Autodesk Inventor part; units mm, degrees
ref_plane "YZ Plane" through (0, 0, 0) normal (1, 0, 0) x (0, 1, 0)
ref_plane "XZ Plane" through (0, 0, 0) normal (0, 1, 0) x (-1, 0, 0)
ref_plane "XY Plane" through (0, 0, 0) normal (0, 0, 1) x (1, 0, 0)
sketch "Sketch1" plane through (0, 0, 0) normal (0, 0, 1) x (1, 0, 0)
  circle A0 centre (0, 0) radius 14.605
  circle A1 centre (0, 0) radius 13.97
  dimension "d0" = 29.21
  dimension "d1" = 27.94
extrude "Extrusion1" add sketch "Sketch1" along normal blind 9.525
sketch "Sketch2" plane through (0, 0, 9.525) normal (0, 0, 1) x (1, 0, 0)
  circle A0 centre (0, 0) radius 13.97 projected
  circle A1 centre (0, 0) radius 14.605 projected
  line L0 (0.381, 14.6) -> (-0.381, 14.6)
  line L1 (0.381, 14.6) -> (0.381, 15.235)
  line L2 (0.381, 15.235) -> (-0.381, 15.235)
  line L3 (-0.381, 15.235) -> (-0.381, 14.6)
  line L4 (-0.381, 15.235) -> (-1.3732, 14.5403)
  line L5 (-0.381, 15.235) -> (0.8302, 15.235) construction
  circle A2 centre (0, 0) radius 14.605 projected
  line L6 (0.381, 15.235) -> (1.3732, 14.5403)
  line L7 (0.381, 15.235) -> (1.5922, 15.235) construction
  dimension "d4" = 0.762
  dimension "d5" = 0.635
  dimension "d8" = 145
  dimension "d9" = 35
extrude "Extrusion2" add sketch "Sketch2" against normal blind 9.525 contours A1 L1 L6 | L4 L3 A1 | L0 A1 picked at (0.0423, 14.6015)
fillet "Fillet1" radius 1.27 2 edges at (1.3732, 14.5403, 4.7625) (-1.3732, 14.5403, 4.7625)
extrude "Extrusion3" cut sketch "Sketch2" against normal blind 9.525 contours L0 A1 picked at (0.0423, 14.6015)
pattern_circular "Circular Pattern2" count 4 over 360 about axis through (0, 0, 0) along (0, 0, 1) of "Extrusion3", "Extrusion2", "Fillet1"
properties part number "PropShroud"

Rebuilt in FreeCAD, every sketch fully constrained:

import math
import FreeCAD as App
import Part
import Sketcher
Q = App.Units.Quantity


def edges_at(feature, points):
    """Names of the edges that pass closest to the given points."""
    edges = feature.Shape.Edges
    near = lambda p: min(range(len(edges)), key=lambda i: edges[i].distToShape(Part.Vertex(*p))[0])
    return sorted({f"Edge{near(p) + 1}" for p in points})

doc = App.newDocument("Part")
params = doc.addObject("Spreadsheet::Sheet", "Params")
for row, (alias, value) in enumerate([
    ("sketch1_diameter", "1.1 in"),
    ("sketch1_diameter2", "1.15 in"),
    ("pad1_length", "0.375 in"),
    ("sketch2_width", "0.03 in"),
    ("sketch2_height", "0.025 in"),
    ("sketch2_radius", "0.575 in"),
    ("pad2_length", "0.375 in"),
    ("fillet_radius", "0.05 in"),
    ("sketch3_width", "0.03 in"),
    ("sketch3_radius", "0.575 in"),
    ("pocket1_length", "0.375 in"),
], start=1):
    params.set(f"A{row}", alias)
    params.set(f"B{row}", "=" + value)
    params.setAlias(f"B{row}", alias)

body = doc.addObject("PartDesign::Body", "Body")

# Sketch on XY plane
sketch1 = doc.addObject("Sketcher::SketchObject", "Sketch")
body.addObject(sketch1)
sketch1.AttachmentSupport = (doc.XY_Plane, [""])
sketch1.MapMode = "FlatFace"
sketch1.addGeometry([
    Part.Circle(App.Vector(0, 0, 0), App.Vector(0, 0, 1), 15),
    Part.Circle(App.Vector(0, 0, 0), App.Vector(0, 0, 1), 14),
], False)
sketch1.addConstraint([
    Sketcher.Constraint("Coincident", 0, 3, -1, 1),
    Sketcher.Constraint("Coincident", 1, 3, -1, 1),
    Sketcher.Constraint("Diameter", 1, Q("1.1 in")),
    Sketcher.Constraint("Diameter", 0, Q("1.15 in")),
])
sketch1.setExpression("Constraints[2]", "Params.sketch1_diameter")
sketch1.setExpression("Constraints[3]", "Params.sketch1_diameter2")
pad1 = doc.addObject("PartDesign::Pad", "Pad")
body.addObject(pad1)
pad1.Profile = sketch1
pad1.setExpression("Length", "Params.pad1_length")

# Sketch on XY plane
sketch2 = doc.addObject("Sketcher::SketchObject", "Sketch001")
body.addObject(sketch2)
sketch2.AttachmentSupport = (doc.XY_Plane, [""])
sketch2.MapMode = "FlatFace"
sketch2.AttachmentOffset = App.Placement(App.Vector(0, 0, 0.375 * 25.4), App.Rotation())
sketch2.addGeometry([
    Part.ArcOfCircle(Part.Circle(App.Vector(0, 0, 0), App.Vector(0, 0, 1), 14.6), math.radians(84.6), math.radians(88.51)),  # 0
    Part.LineSegment(App.Vector(1.4, 14.5, 0), App.Vector(0.4, 15.2, 0)),  # 1
    Part.LineSegment(App.Vector(0.4, 15.2, 0), App.Vector(0.4, 14.6, 0)),  # 2
    Part.LineSegment(App.Vector(-0.4, 15.2, 0), App.Vector(-1.4, 14.5, 0)),  # 3
    Part.ArcOfCircle(Part.Circle(App.Vector(0, 0, 0), App.Vector(0, 0, 1), 14.6), math.radians(91.49), math.radians(95.4)),  # 4
    Part.LineSegment(App.Vector(-0.4, 14.6, 0), App.Vector(-0.4, 15.2, 0)),  # 5
    Part.LineSegment(App.Vector(-0.4, 14.6, 0), App.Vector(0.4, 14.6, 0)),  # 6
    Part.ArcOfCircle(Part.Circle(App.Vector(0, 0, 0), App.Vector(0, 0, 1), 14.6), math.radians(88.51), math.radians(91.49)),  # 7
], False)
sketch2.addConstraint([
    Sketcher.Constraint("Coincident", 0, 1, 1, 1),
    Sketcher.Constraint("Coincident", 1, 2, 2, 1),
    Sketcher.Constraint("Coincident", 2, 2, 0, 2),
    Sketcher.Constraint("Coincident", 3, 2, 4, 2),
    Sketcher.Constraint("Coincident", 4, 1, 5, 1),
    Sketcher.Constraint("Coincident", 5, 2, 3, 1),
    Sketcher.Constraint("Coincident", 6, 1, 7, 2),
    Sketcher.Constraint("Coincident", 7, 1, 6, 2),
    Sketcher.Constraint("Vertical", 2),
    Sketcher.Constraint("Vertical", 5),
    Sketcher.Constraint("Horizontal", 6),
    Sketcher.Constraint("Coincident", 0, 3, -1, 1),
    Sketcher.Constraint("Coincident", 4, 3, -1, 1),
    Sketcher.Constraint("Coincident", 7, 3, -1, 1),
    Sketcher.Constraint("Coincident", 6, 1, 4, 1),
    Sketcher.Constraint("Coincident", 7, 1, 2, 2),
    Sketcher.Constraint("Horizontal", 0, 1, 3, 2),
    Sketcher.Constraint("Horizontal", 1, 2, 5, 2),
    Sketcher.Constraint("DistanceX", 6, 1, 6, 2, Q("0.03 in")),
    Sketcher.Constraint("DistanceY", 2, 2, 2, 1, Q("0.025 in")),
    Sketcher.Constraint("Radius", 0, Q("0.575 in")),
    Sketcher.Constraint("Distance", 1, 1.2112),
])
sketch2.setExpression("Constraints[18]", "Params.sketch2_width")
sketch2.setExpression("Constraints[19]", "Params.sketch2_height")
sketch2.setExpression("Constraints[20]", "Params.sketch2_radius")
pad2 = doc.addObject("PartDesign::Pad", "Pad001")
body.addObject(pad2)
pad2.Profile = sketch2
pad2.setExpression("Length", "Params.pad2_length")
pad2.Reversed = True
doc.recompute()

fillet = doc.addObject("PartDesign::Fillet", "Fillet")
body.addObject(fillet)
fillet.Base = (pad2, edges_at(pad2, [(1.373, 14.54, 4.763), (-1.373, 14.54, 4.763)]))
fillet.setExpression("Radius", "Params.fillet_radius")

# Sketch on XY plane
sketch3 = doc.addObject("Sketcher::SketchObject", "Sketch002")
body.addObject(sketch3)
sketch3.AttachmentSupport = (doc.XY_Plane, [""])
sketch3.MapMode = "FlatFace"
sketch3.AttachmentOffset = App.Placement(App.Vector(0, 0, 0.375 * 25.4), App.Rotation())
sketch3.addGeometry([
    Part.LineSegment(App.Vector(-0.4, 14.6, 0), App.Vector(0.4, 14.6, 0)),
    Part.ArcOfCircle(Part.Circle(App.Vector(0, 0, 0), App.Vector(0, 0, 1), 14.6), math.radians(88.51), math.radians(91.49)),
], False)
sketch3.addConstraint([
    Sketcher.Constraint("Coincident", 0, 1, 1, 2),
    Sketcher.Constraint("Coincident", 1, 1, 0, 2),
    Sketcher.Constraint("Horizontal", 0),
    Sketcher.Constraint("Coincident", 1, 3, -1, 1),
    Sketcher.Constraint("DistanceX", 0, 1, 0, 2, Q("0.03 in")),
    Sketcher.Constraint("Radius", 1, Q("0.575 in")),
])
sketch3.setExpression("Constraints[4]", "Params.sketch3_width")
sketch3.setExpression("Constraints[5]", "Params.sketch3_radius")
pocket1 = doc.addObject("PartDesign::Pocket", "Pocket")
body.addObject(pocket1)
pocket1.Profile = sketch3
pocket1.setExpression("Length", "Params.pocket1_length")
doc.recompute()

polarpattern = doc.addObject("PartDesign::PolarPattern", "PolarPattern")
body.addObject(polarpattern)
polarpattern.Originals = [pocket1, pad2, fillet]
polarpattern.Axis = (doc.Z_Axis, [""])
polarpattern.Angle = 360
polarpattern.Occurrences = 4
body.Tip = polarpattern

doc.recompute()
